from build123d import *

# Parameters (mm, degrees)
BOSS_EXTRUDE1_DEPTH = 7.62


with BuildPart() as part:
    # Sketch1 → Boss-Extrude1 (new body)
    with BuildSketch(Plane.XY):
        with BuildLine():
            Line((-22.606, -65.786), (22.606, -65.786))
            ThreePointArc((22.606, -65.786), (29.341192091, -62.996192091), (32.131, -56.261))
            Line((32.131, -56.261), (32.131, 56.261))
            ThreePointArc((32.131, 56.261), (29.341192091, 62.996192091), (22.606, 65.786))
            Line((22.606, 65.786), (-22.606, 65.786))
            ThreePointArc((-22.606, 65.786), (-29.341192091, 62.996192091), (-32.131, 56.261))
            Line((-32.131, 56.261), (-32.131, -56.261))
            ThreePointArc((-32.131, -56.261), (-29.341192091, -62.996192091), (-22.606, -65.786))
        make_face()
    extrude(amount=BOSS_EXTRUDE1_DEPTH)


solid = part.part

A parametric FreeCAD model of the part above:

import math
import FreeCAD as App
import Part
import Sketcher

V = App.Vector
Q = App.Units.Quantity

doc = App.newDocument("Part")
body = doc.addObject("PartDesign::Body", "Body")

# Sketch on XY plane
sketch1 = body.newObject("Sketcher::SketchObject", "Sketch")
sketch1.AttachmentSupport = (doc.getObject("XY_Plane"), [""])
sketch1.MapMode = "FlatFace"
sketch1.addGeometry([
    Part.LineSegment(V(-22.606, -65.786, 0), V(22.606, -65.786, 0)),  # 0
    Part.ArcOfCircle(Part.Circle(V(22.606, -56.261, 0), V(0, 0, 1), 9.525), math.radians(-90), math.radians(0)),  # 1
    Part.LineSegment(V(32.131, -56.261, 0), V(32.131, 56.261, 0)),  # 2
    Part.ArcOfCircle(Part.Circle(V(22.606, 56.261, 0), V(0, 0, 1), 9.525), math.radians(0), math.radians(90)),  # 3
    Part.LineSegment(V(22.606, 65.786, 0), V(-22.606, 65.786, 0)),  # 4
    Part.ArcOfCircle(Part.Circle(V(-22.606, 56.261, 0), V(0, 0, 1), 9.525), math.radians(90), math.radians(180)),  # 5
    Part.LineSegment(V(-32.131, 56.261, 0), V(-32.131, -56.261, 0)),  # 6
    Part.ArcOfCircle(Part.Circle(V(-22.606, -56.261, 0), V(0, 0, 1), 9.525), math.radians(180), math.radians(270)),  # 7
], False)
sketch1.addConstraint([
    Sketcher.Constraint("Tangent", 0, 2, 1, 1),
    Sketcher.Constraint("Tangent", 1, 2, 2, 1),
    Sketcher.Constraint("Tangent", 2, 2, 3, 1),
    Sketcher.Constraint("Tangent", 3, 2, 4, 1),
    Sketcher.Constraint("Tangent", 4, 2, 5, 1),
    Sketcher.Constraint("Tangent", 5, 2, 6, 1),
    Sketcher.Constraint("Tangent", 6, 2, 7, 1),
    Sketcher.Constraint("Tangent", 7, 2, 0, 1),
    Sketcher.Constraint("Horizontal", 0),
    Sketcher.Constraint("Vertical", 2),
    Sketcher.Constraint("Horizontal", 4),
    Sketcher.Constraint("Vertical", 6),
    Sketcher.Constraint("Equal", 1, 3),
    Sketcher.Constraint("Equal", 3, 5),
    Sketcher.Constraint("Equal", 5, 7),
    Sketcher.Constraint("Symmetric", 1, 3, 5, 3, -1, 1),
    Sketcher.Constraint("Radius", 1, Q("0.375 in")),
    Sketcher.Constraint("DistanceX", 0, 1, 0, 2, Q("1.78 in")),
    Sketcher.Constraint("DistanceY", 2, 1, 2, 2, Q("4.43 in")),
])
pad1 = body.newObject("PartDesign::Pad", "Pad")
pad1.Profile = sketch1
pad1.Length = Q("0.3 in")

doc.recompute()
